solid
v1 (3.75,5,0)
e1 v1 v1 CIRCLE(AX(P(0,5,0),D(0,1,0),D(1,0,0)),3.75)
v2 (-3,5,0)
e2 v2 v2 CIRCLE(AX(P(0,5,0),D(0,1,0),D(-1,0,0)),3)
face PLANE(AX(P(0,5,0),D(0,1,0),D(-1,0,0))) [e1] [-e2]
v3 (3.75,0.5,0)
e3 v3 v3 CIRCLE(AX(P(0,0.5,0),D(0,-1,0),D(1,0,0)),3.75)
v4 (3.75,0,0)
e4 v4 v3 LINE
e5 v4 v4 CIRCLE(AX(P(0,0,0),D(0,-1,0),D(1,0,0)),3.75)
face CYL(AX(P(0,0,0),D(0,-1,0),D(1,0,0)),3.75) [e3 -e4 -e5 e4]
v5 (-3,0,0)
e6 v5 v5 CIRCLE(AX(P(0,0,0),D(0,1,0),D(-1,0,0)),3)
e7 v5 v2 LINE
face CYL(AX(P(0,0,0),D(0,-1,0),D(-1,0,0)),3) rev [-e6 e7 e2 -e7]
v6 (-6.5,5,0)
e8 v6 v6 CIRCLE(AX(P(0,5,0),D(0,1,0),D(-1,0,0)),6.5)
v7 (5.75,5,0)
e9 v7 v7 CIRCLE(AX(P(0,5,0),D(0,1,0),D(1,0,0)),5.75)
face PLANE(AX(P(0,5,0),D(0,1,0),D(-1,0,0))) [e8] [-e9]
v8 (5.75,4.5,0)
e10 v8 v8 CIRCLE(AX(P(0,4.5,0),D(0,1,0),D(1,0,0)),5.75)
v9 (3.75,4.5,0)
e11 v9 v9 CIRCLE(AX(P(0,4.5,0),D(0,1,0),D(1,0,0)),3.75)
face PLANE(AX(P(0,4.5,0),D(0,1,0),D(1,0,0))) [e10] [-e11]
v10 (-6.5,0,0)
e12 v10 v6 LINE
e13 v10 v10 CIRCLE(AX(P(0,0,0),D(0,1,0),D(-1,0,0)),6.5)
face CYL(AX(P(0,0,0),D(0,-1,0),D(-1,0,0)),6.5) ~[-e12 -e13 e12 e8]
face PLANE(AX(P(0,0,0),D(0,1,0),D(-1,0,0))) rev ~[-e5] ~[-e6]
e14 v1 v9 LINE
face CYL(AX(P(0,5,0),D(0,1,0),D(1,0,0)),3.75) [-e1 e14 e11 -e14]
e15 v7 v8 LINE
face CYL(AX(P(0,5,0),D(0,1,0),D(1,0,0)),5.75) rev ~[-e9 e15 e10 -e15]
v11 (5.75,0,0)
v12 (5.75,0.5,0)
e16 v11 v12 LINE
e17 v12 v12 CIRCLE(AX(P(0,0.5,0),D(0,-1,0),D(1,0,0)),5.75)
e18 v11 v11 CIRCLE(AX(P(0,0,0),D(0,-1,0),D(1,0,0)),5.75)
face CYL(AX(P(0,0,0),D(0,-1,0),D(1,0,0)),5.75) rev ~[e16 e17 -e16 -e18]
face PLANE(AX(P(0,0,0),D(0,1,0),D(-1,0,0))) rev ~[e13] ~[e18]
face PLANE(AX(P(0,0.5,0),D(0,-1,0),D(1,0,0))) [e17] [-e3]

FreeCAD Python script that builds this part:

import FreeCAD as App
import Part
import Sketcher
from FreeCAD import Vector

doc = App.newDocument("Part")
body = doc.addObject("PartDesign::Body", "Body")

sketch1 = body.newObject("Sketcher::SketchObject", "Sketch")
sketch1.AttachmentSupport = (doc.getObject("XZ_Plane"), [""])
sketch1.MapMode = "FlatFace"
sketch1.addGeometry([
    Part.Circle(Vector(0, 0, 0), Vector(0, 0, 1), 6.5),
    Part.Circle(Vector(0, 0, 0), Vector(0, 0, 1), 3),
], False)
sketch1.addConstraint([
    Sketcher.Constraint("Coincident", 0, 3, -1, 1),
    Sketcher.Constraint("Coincident", 1, 3, -1, 1),
    Sketcher.Constraint("Diameter", 0, 13.0),
    Sketcher.Constraint("Diameter", 1, 6.0),
])
pad1 = body.newObject("PartDesign::Pad", "Pad")
pad1.Profile = sketch1
pad1.Length = 5
pad1.Reversed = True

sketch2 = body.newObject("Sketcher::SketchObject", "Sketch001")
sketch2.AttachmentSupport = (doc.getObject("XZ_Plane"), [""])
sketch2.MapMode = "FlatFace"
sketch2.AttachmentOffset = App.Placement(Vector(0, 0, -5), App.Rotation())
sketch2.addGeometry([
    Part.Circle(Vector(0, 0, 0), Vector(0, 0, 1), 5.75),
    Part.Circle(Vector(0, 0, 0), Vector(0, 0, 1), 3.75),
], False)
sketch2.addConstraint([
    Sketcher.Constraint("Coincident", 0, 3, -1, 1),
    Sketcher.Constraint("Coincident", 1, 3, -1, 1),
    Sketcher.Constraint("Diameter", 0, 11.5),
    Sketcher.Constraint("Diameter", 1, 7.5),
])
pocket1 = body.newObject("PartDesign::Pocket", "Pocket")
pocket1.Profile = sketch2
pocket1.Length = 0.5
pocket1.Reversed = True

sketch3 = body.newObject("Sketcher::SketchObject", "Sketch002")
sketch3.AttachmentSupport = (doc.getObject("XZ_Plane"), [""])
sketch3.MapMode = "FlatFace"
sketch3.addGeometry([
    Part.Circle(Vector(0, 0, 0), Vector(0, 0, 1), 5.75),
    Part.Circle(Vector(0, 0, 0), Vector(0, 0, 1), 3.75),
], False)
sketch3.addConstraint([
    Sketcher.Constraint("Coincident", 0, 3, -1, 1),
    Sketcher.Constraint("Coincident", 1, 3, -1, 1),
    Sketcher.Constraint("Diameter", 0, 11.5),
    Sketcher.Constraint("Diameter", 1, 7.5),
])
pocket2 = body.newObject("PartDesign::Pocket", "Pocket001")
pocket2.Profile = sketch3
pocket2.Length = 0.5

doc.recompute()
